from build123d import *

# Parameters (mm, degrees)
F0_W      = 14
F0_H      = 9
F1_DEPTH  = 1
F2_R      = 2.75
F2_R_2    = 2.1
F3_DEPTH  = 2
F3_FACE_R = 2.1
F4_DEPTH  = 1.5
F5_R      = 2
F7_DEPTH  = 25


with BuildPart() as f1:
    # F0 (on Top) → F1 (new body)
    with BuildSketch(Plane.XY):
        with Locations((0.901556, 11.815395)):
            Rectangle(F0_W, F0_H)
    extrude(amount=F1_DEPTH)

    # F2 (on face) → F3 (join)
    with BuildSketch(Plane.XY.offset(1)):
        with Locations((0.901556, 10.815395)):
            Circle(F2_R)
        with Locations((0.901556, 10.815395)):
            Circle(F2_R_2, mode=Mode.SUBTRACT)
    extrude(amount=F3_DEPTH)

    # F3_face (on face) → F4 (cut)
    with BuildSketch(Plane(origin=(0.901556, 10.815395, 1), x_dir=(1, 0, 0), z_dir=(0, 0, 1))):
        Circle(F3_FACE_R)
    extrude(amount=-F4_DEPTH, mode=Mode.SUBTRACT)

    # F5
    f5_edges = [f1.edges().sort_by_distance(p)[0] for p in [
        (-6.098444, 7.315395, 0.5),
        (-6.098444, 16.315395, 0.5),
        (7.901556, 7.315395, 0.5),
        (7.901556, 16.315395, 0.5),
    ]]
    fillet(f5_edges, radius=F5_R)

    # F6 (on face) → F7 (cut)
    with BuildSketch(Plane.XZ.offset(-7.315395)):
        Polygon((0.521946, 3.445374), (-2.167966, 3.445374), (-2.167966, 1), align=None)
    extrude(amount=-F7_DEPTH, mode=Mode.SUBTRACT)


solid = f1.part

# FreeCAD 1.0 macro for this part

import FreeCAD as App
import Part
import Sketcher

V = App.Vector


def edges_at(feature, points):
    """Names of the edges that pass closest to the given points."""
    edges = feature.Shape.Edges
    near = lambda p: min(range(len(edges)), key=lambda i: edges[i].distToShape(Part.Vertex(*p))[0])
    return sorted({f"Edge{near(p) + 1}" for p in points})

doc = App.newDocument("Part")
body = doc.addObject("PartDesign::Body", "Body")

sketch1 = doc.addObject("Sketcher::SketchObject", "Sketch")
body.addObject(sketch1)
sketch1.AttachmentSupport = (doc.XY_Plane, [""])
sketch1.MapMode = "FlatFace"
sketch1.addGeometry(Part.LineSegment(V(-6, 16, 0), V(-6, 7, 0)), False)
sketch1.addGeometry(Part.LineSegment(V(-6, 7, 0), V(8, 7, 0)), False)
sketch1.addGeometry(Part.LineSegment(V(8, 7, 0), V(8, 16, 0)), False)
sketch1.addGeometry(Part.LineSegment(V(8, 16, 0), V(-6, 16, 0)), False)
sketch1.addConstraint(Sketcher.Constraint("Coincident", 0, 2, 1, 1))
sketch1.addConstraint(Sketcher.Constraint("Coincident", 1, 2, 2, 1))
sketch1.addConstraint(Sketcher.Constraint("Coincident", 2, 2, 3, 1))
sketch1.addConstraint(Sketcher.Constraint("Coincident", 3, 2, 0, 1))
sketch1.addConstraint(Sketcher.Constraint("Vertical", 0))
sketch1.addConstraint(Sketcher.Constraint("Horizontal", 1))
sketch1.addConstraint(Sketcher.Constraint("Vertical", 2))
sketch1.addConstraint(Sketcher.Constraint("Horizontal", 3))
sketch1.addConstraint(Sketcher.Constraint("DistanceX", 1, 1, 1, 2, 14.0))
sketch1.addConstraint(Sketcher.Constraint("DistanceY", 0, 2, 0, 1, 9.0))
sketch1.addConstraint(Sketcher.Constraint("DistanceX", 0, 2, -1, 1, 6.098444))
sketch1.addConstraint(Sketcher.Constraint("DistanceY", -1, 1, 0, 2, 7.315395))
pad1 = doc.addObject("PartDesign::Pad", "Pad")
body.addObject(pad1)
pad1.Profile = sketch1
pad1.Length = 1

sketch2 = doc.addObject("Sketcher::SketchObject", "Sketch001")
body.addObject(sketch2)
sketch2.AttachmentSupport = (doc.XY_Plane, [""])
sketch2.MapMode = "FlatFace"
sketch2.AttachmentOffset = App.Placement(V(0, 0, 1), App.Rotation())
sketch2.addGeometry(Part.Circle(V(0.9, 10.8, 0), V(0, 0, 1), 2.8), False)
sketch2.addGeometry(Part.Circle(V(0.9, 10.8, 0), V(0, 0, 1), 2.1), False)
sketch2.addConstraint(Sketcher.Constraint("Coincident", 1, 3, 0, 3))
sketch2.addConstraint(Sketcher.Constraint("Diameter", 0, 5.5))
sketch2.addConstraint(Sketcher.Constraint("Diameter", 1, 4.2))
sketch2.addConstraint(Sketcher.Constraint("DistanceX", -1, 1, 0, 3, 0.901556))
sketch2.addConstraint(Sketcher.Constraint("DistanceY", -1, 1, 0, 3, 10.815395))
pad2 = doc.addObject("PartDesign::Pad", "Pad001")
body.addObject(pad2)
pad2.Profile = sketch2
pad2.Length = 2

sketch3 = doc.addObject("Sketcher::SketchObject", "Sketch002")
body.addObject(sketch3)
sketch3.AttachmentSupport = (doc.XY_Plane, [""])
sketch3.MapMode = "FlatFace"
sketch3.AttachmentOffset = App.Placement(V(0, 0, 1), App.Rotation())
sketch3.addGeometry(Part.Circle(V(0.9, 10.8, 0), V(0, 0, 1), 2.1), False)
sketch3.addConstraint(Sketcher.Constraint("Diameter", 0, 4.2))
sketch3.addConstraint(Sketcher.Constraint("DistanceX", -1, 1, 0, 3, 0.901556))
sketch3.addConstraint(Sketcher.Constraint("DistanceY", -1, 1, 0, 3, 10.815395))
pocket1 = doc.addObject("PartDesign::Pocket", "Pocket")
body.addObject(pocket1)
pocket1.Profile = sketch3
pocket1.Length = 1.5
doc.recompute()

fillet = doc.addObject("PartDesign::Fillet", "Fillet")
body.addObject(fillet)
fillet.Base = (pocket1, edges_at(pocket1, [
    (-6.098, 7.315, 0.5),
    (-6.098, 16.315, 0.5),
    (7.902, 7.315, 0.5),
    (7.902, 16.315, 0.5),
]))
fillet.Radius = 2

sketch4 = doc.addObject("Sketcher::SketchObject", "Sketch003")
body.addObject(sketch4)
sketch4.AttachmentSupport = (doc.XZ_Plane, [""])
sketch4.MapMode = "FlatFace"
sketch4.AttachmentOffset = App.Placement(V(0, 0, -7.315395), App.Rotation())
sketch4.addGeometry(Part.LineSegment(V(0.5, 3.4, 0), V(-2.2, 3.4, 0)), False)
sketch4.addGeometry(Part.LineSegment(V(-2.2, 3.4, 0), V(-2.2, 1, 0)), False)
sketch4.addGeometry(Part.LineSegment(V(-2.2, 1, 0), V(0.5, 3.4, 0)), False)
sketch4.addConstraint(Sketcher.Constraint("Coincident", 0, 2, 1, 1))
sketch4.addConstraint(Sketcher.Constraint("Coincident", 1, 2, 2, 1))
sketch4.addConstraint(Sketcher.Constraint("Coincident", 2, 2, 0, 1))
sketch4.addConstraint(Sketcher.Constraint("Horizontal", 0))
sketch4.addConstraint(Sketcher.Constraint("Vertical", 1))
sketch4.addConstraint(Sketcher.Constraint("DistanceY", -1, 1, 1, 2, 1.0))
sketch4.addConstraint(Sketcher.Constraint("DistanceX", 0, 2, 0, 1, 2.689912))
sketch4.addConstraint(Sketcher.Constraint("Distance", 2, 3.63531))
sketch4.addConstraint(Sketcher.Constraint("DistanceX", 0, 2, -1, 1, 2.167966))
pocket2 = doc.addObject("PartDesign::Pocket", "Pocket001")
body.addObject(pocket2)
pocket2.Profile = sketch4
pocket2.Length = 25

doc.recompute()
